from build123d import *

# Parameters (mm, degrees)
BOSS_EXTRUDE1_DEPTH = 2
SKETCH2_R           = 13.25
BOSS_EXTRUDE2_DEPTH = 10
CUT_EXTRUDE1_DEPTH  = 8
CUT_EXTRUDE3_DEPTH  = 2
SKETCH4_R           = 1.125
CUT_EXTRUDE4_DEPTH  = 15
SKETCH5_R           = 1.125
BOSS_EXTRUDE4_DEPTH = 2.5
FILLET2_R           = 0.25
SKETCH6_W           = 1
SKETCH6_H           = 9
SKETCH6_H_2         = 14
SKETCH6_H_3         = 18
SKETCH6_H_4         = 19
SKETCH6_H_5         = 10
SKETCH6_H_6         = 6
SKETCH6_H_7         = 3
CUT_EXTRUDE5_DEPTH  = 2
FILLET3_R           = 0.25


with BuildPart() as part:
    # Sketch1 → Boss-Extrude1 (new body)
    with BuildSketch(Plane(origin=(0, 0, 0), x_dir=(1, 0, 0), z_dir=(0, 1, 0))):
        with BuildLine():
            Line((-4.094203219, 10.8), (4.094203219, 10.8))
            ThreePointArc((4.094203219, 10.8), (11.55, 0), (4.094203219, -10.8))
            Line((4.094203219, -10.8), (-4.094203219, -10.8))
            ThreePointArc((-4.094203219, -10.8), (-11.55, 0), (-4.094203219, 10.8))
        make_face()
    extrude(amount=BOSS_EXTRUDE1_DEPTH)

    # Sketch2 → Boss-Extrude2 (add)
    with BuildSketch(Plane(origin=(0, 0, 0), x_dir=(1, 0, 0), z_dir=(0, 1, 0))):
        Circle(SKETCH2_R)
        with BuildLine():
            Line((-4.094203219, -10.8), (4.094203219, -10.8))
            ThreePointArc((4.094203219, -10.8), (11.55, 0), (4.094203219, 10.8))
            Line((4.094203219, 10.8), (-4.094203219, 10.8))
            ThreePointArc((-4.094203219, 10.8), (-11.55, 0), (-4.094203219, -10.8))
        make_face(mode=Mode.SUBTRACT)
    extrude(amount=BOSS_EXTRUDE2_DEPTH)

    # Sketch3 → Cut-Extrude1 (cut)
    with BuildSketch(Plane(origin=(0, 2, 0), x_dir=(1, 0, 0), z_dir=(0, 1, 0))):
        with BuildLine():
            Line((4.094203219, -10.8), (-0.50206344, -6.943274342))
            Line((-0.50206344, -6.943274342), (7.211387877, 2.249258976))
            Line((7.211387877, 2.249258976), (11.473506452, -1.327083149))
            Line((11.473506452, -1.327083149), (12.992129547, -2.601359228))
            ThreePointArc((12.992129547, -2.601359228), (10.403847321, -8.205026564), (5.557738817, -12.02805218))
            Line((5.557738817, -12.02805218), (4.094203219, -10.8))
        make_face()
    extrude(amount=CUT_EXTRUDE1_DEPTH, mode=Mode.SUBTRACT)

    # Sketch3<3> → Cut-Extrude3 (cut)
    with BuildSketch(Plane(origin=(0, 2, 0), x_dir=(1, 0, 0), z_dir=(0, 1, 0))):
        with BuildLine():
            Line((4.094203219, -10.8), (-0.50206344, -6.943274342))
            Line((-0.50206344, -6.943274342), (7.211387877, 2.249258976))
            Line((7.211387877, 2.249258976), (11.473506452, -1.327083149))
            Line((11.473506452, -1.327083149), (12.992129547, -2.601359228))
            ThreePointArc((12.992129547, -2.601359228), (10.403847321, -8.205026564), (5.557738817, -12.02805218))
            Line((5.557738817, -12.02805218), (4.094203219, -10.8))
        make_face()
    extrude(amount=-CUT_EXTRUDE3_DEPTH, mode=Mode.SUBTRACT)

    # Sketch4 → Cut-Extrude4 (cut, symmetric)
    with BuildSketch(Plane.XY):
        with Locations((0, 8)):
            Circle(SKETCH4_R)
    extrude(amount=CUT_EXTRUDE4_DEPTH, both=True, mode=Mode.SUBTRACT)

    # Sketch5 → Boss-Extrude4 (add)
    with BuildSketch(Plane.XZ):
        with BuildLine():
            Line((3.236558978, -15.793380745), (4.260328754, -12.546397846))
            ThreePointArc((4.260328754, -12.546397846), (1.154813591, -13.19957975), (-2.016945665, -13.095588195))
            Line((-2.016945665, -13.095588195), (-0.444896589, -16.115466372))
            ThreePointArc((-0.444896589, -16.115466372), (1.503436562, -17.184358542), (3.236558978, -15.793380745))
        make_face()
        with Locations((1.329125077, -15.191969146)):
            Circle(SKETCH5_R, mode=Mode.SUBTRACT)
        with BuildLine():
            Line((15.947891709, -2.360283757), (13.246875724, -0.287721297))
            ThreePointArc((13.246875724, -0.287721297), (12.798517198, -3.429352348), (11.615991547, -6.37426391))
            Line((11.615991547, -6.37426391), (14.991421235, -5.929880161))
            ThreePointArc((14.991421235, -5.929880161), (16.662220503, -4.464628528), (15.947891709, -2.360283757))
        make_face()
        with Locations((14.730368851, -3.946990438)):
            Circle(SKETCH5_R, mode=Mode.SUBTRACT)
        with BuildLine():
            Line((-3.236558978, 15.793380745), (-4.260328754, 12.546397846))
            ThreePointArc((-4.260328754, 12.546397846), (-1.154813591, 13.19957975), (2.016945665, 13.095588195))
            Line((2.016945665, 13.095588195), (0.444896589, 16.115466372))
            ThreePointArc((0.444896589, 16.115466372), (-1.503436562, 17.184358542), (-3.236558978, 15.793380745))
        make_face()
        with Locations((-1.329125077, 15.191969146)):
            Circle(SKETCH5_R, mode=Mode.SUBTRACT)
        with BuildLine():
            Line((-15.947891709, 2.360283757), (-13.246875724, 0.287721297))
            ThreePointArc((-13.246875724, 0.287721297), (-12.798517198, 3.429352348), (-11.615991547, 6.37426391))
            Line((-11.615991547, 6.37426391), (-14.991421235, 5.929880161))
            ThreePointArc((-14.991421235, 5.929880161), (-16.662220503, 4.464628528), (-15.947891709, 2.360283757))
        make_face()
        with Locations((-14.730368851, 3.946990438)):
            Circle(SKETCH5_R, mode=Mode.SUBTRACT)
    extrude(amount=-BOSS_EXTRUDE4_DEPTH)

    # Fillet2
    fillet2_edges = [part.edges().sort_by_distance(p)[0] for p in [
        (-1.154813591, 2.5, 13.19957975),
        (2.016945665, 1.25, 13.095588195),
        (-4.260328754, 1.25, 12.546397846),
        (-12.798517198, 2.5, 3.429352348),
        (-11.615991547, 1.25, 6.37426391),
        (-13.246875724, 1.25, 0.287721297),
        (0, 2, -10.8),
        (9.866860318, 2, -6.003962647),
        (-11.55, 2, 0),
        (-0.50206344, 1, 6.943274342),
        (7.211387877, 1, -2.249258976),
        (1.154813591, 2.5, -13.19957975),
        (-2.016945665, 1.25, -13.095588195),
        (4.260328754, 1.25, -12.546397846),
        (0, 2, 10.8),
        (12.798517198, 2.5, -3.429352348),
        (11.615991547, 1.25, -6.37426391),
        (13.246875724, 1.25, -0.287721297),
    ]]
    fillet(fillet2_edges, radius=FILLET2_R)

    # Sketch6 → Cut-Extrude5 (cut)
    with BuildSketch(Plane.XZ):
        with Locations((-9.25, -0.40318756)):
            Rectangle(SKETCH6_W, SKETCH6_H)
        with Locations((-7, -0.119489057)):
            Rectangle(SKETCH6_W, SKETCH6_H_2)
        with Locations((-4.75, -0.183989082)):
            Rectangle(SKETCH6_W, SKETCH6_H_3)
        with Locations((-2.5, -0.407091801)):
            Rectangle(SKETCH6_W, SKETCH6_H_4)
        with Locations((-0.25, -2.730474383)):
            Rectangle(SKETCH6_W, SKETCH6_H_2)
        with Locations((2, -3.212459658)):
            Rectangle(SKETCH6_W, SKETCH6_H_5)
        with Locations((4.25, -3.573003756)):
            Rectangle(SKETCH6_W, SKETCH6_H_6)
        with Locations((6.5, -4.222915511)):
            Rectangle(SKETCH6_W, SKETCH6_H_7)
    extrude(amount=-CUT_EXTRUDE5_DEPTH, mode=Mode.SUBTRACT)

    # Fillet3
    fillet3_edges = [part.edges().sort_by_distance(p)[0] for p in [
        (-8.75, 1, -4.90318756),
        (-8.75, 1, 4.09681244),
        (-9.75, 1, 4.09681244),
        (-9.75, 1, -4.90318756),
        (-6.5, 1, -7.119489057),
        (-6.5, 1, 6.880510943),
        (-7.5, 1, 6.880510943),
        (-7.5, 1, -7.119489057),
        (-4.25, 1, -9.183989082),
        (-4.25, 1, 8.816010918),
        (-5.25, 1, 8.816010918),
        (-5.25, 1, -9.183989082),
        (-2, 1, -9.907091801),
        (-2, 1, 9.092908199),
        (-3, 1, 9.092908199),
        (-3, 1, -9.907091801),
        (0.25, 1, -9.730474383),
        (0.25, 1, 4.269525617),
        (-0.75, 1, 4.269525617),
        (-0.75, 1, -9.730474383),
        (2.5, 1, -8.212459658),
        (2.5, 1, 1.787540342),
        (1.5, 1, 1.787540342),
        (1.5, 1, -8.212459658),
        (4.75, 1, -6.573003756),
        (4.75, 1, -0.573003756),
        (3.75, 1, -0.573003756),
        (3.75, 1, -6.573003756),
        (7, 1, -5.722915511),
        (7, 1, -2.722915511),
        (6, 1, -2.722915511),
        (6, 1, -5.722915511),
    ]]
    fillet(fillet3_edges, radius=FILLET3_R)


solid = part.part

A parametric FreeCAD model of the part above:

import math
import FreeCAD as App
import Part
import Sketcher
from FreeCAD import Vector
Q = App.Units.Quantity


def edges_at(feature, points):
    """Names of the edges that pass closest to the given points."""
    edges = feature.Shape.Edges
    near = lambda p: min(range(len(edges)), key=lambda i: edges[i].distToShape(Part.Vertex(*p))[0])
    return sorted({f"Edge{near(p) + 1}" for p in points})


def add_polygon(sketch, points):
    """Adds a closed chain of lines whose ends are joined by coincident constraints."""
    first, n = sketch.GeometryCount, len(points)
    for a, b in zip(points, points[1:] + points[:1]):
        sketch.addGeometry(Part.LineSegment(App.Vector(*a, 0), App.Vector(*b, 0)), False)
    for i in range(n):
        sketch.addConstraint(Sketcher.Constraint("Coincident", first + i, 2, first + (i + 1) % n, 1))

doc = App.newDocument("Part")
body = doc.addObject("PartDesign::Body", "Body")

# Sketch on XZ plane
sketch1 = body.newObject("Sketcher::SketchObject", "Sketch")
sketch1.AttachmentSupport = (doc.getObject("XZ_Plane"), [""])
sketch1.MapMode = "FlatFace"
sketch1.addGeometry([
    Part.LineSegment(Vector(4.094203, -10.8, 0), Vector(-4.094203, -10.8, 0)),
    Part.ArcOfCircle(Part.Circle(Vector(0, 0, 0), Vector(0, 0, 1), 11.55), math.radians(110.761362), math.radians(249.238638)),
    Part.LineSegment(Vector(-4.094203, 10.8, 0), Vector(4.094203, 10.8, 0)),
    Part.ArcOfCircle(Part.Circle(Vector(0, 0, 0), Vector(0, 0, 1), 11.55), math.radians(-69.238638), math.radians(69.238638)),
], False)
sketch1.addConstraint([
    Sketcher.Constraint("Coincident", 0, 2, 1, 2),
    Sketcher.Constraint("Coincident", 1, 1, 2, 1),
    Sketcher.Constraint("Coincident", 2, 2, 3, 2),
    Sketcher.Constraint("Coincident", 3, 1, 0, 1),
    Sketcher.Constraint("Horizontal", 0),
    Sketcher.Constraint("Horizontal", 2),
    Sketcher.Constraint("Coincident", 1, 3, -1, 1),
    Sketcher.Constraint("Coincident", 3, 3, -1, 1),
    Sketcher.Constraint("Equal", 1, 3),
    Sketcher.Constraint("Vertical", 0, 2, 1, 1),
    Sketcher.Constraint("Radius", 1, 11.55),
    Sketcher.Constraint("DistanceY", 0, 2, -1, 1, 10.8),
])
pad1 = body.newObject("PartDesign::Pad", "Pad")
pad1.Profile = sketch1
pad1.Length = 2
pad1.Reversed = True

# Sketch on XZ plane
sketch2 = body.newObject("Sketcher::SketchObject", "Sketch001")
sketch2.AttachmentSupport = (doc.getObject("XZ_Plane"), [""])
sketch2.MapMode = "FlatFace"
sketch2.addGeometry([
    Part.Circle(Vector(0, 0, 0), Vector(0, 0, 1), 13.25),  # 0
    Part.LineSegment(Vector(4.094203, 10.8, 0), Vector(-4.094203, 10.8, 0)),  # 1
    Part.ArcOfCircle(Part.Circle(Vector(0, 0, 0), Vector(0, 0, 1), 11.55), math.radians(110.761362), math.radians(249.238638)),  # 2
    Part.LineSegment(Vector(-4.094203, -10.8, 0), Vector(4.094203, -10.8, 0)),  # 3
    Part.ArcOfCircle(Part.Circle(Vector(0, 0, 0), Vector(0, 0, 1), 11.55), math.radians(-69.238638), math.radians(69.238638)),  # 4
], False)
sketch2.addConstraint([
    Sketcher.Constraint("Coincident", 1, 2, 2, 1),
    Sketcher.Constraint("Coincident", 2, 2, 3, 1),
    Sketcher.Constraint("Coincident", 3, 2, 4, 1),
    Sketcher.Constraint("Coincident", 4, 2, 1, 1),
    Sketcher.Constraint("Horizontal", 1),
    Sketcher.Constraint("Horizontal", 3),
    Sketcher.Constraint("Coincident", 0, 3, -1, 1),
    Sketcher.Constraint("Coincident", 2, 3, -1, 1),
    Sketcher.Constraint("Coincident", 4, 3, -1, 1),
    Sketcher.Constraint("Equal", 2, 4),
    Sketcher.Constraint("Vertical", 1, 2, 2, 2),
    Sketcher.Constraint("Diameter", 0, 26.5),
    Sketcher.Constraint("Radius", 2, 11.55),
    Sketcher.Constraint("DistanceY", -1, 1, 1, 2, 10.8),
])
pad2 = body.newObject("PartDesign::Pad", "Pad001")
pad2.Profile = sketch2
pad2.Length = 10
pad2.Reversed = True

# Sketch on XZ plane
sketch3 = body.newObject("Sketcher::SketchObject", "Sketch002")
sketch3.AttachmentSupport = (doc.getObject("XZ_Plane"), [""])
sketch3.MapMode = "FlatFace"
sketch3.AttachmentOffset = App.Placement(Vector(0, 0, -2), App.Rotation())
sketch3.addGeometry([
    Part.LineSegment(Vector(-0.502063, 6.943274, 0), Vector(4.094203, 10.8, 0)),  # 0
    Part.LineSegment(Vector(4.094203, 10.8, 0), Vector(5.557739, 12.028052, 0)),  # 1
    Part.ArcOfCircle(Part.Circle(Vector(0, 0, 0), Vector(0, 0, 1), 13.25), math.radians(11.32237), math.radians(65.200006)),  # 2
    Part.LineSegment(Vector(12.99213, 2.601359, 0), Vector(11.473506, 1.327083, 0)),  # 3
    Part.LineSegment(Vector(11.473506, 1.327083, 0), Vector(7.211388, -2.249259, 0)),  # 4
    Part.LineSegment(Vector(7.211388, -2.249259, 0), Vector(-0.502063, 6.943274, 0)),  # 5
], False)
sketch3.addConstraint([
    Sketcher.Constraint("Coincident", 0, 2, 1, 1),
    Sketcher.Constraint("Coincident", 1, 2, 2, 2),
    Sketcher.Constraint("Coincident", 2, 1, 3, 1),
    Sketcher.Constraint("Coincident", 3, 2, 4, 1),
    Sketcher.Constraint("Coincident", 4, 2, 5, 1),
    Sketcher.Constraint("Coincident", 5, 2, 0, 1),
    Sketcher.Constraint("Coincident", 2, 3, -1, 1),
    Sketcher.Constraint("Parallel", 0, 1),
    Sketcher.Constraint("Parallel", 1, 3),
    Sketcher.Constraint("Parallel", 3, 4),
    Sketcher.Constraint("Perpendicular", 4, 5),
    Sketcher.Constraint("Angle", 0, Q("40 deg")),
    Sketcher.Constraint("Radius", 2, 13.25),
    Sketcher.Constraint("Distance", 0, 6.0),
    Sketcher.Constraint("Distance", 5, 12.0),
    Sketcher.Constraint("DistanceY", -1, 1, 0, 2, 10.8),
    Sketcher.Constraint("Distance", 4, 5.563801),
    Sketcher.Constraint("Distance", 1, 1.91051),
])
pocket1 = body.newObject("PartDesign::Pocket", "Pocket")
pocket1.Profile = sketch3
pocket1.Length = 8

# Sketch on XZ plane
sketch4 = body.newObject("Sketcher::SketchObject", "Sketch003")
sketch4.AttachmentSupport = (doc.getObject("XZ_Plane"), [""])
sketch4.MapMode = "FlatFace"
sketch4.AttachmentOffset = App.Placement(Vector(0, 0, -2), App.Rotation())
sketch4.addGeometry([
    Part.LineSegment(Vector(-0.502063, 6.943274, 0), Vector(4.094203, 10.8, 0)),  # 0
    Part.LineSegment(Vector(4.094203, 10.8, 0), Vector(5.557739, 12.028052, 0)),  # 1
    Part.ArcOfCircle(Part.Circle(Vector(0, 0, 0), Vector(0, 0, 1), 13.25), math.radians(11.32237), math.radians(65.200006)),  # 2
    Part.LineSegment(Vector(12.99213, 2.601359, 0), Vector(11.473506, 1.327083, 0)),  # 3
    Part.LineSegment(Vector(11.473506, 1.327083, 0), Vector(7.211388, -2.249259, 0)),  # 4
    Part.LineSegment(Vector(7.211388, -2.249259, 0), Vector(-0.502063, 6.943274, 0)),  # 5
], False)
sketch4.addConstraint([
    Sketcher.Constraint("Coincident", 0, 2, 1, 1),
    Sketcher.Constraint("Coincident", 1, 2, 2, 2),
    Sketcher.Constraint("Coincident", 2, 1, 3, 1),
    Sketcher.Constraint("Coincident", 3, 2, 4, 1),
    Sketcher.Constraint("Coincident", 4, 2, 5, 1),
    Sketcher.Constraint("Coincident", 5, 2, 0, 1),
    Sketcher.Constraint("Coincident", 2, 3, -1, 1),
    Sketcher.Constraint("Parallel", 0, 1),
    Sketcher.Constraint("Parallel", 1, 3),
    Sketcher.Constraint("Parallel", 3, 4),
    Sketcher.Constraint("Perpendicular", 4, 5),
    Sketcher.Constraint("Angle", 0, Q("40 deg")),
    Sketcher.Constraint("Radius", 2, 13.25),
    Sketcher.Constraint("Distance", 0, 6.0),
    Sketcher.Constraint("Distance", 5, 12.0),
    Sketcher.Constraint("DistanceY", -1, 1, 0, 2, 10.8),
    Sketcher.Constraint("Distance", 4, 5.563801),
    Sketcher.Constraint("Distance", 1, 1.91051),
])
pocket2 = body.newObject("PartDesign::Pocket", "Pocket001")
pocket2.Profile = sketch4
pocket2.Length = 2
pocket2.Reversed = True

# Sketch on XY plane
sketch5 = body.newObject("Sketcher::SketchObject", "Sketch004")
sketch5.AttachmentSupport = (doc.getObject("XY_Plane"), [""])
sketch5.MapMode = "FlatFace"
sketch5.addGeometry(Part.Circle(Vector(0, 8, 0), Vector(0, 0, 1), 1.125), False)
sketch5.addConstraint([
    Sketcher.Constraint("PointOnObject", 0, 3, -2),
    Sketcher.Constraint("Diameter", 0, 2.25),
    Sketcher.Constraint("DistanceY", -1, 1, 0, 3, 8.0),
])
pocket3 = body.newObject("PartDesign::Pocket", "Pocket002")
pocket3.Profile = sketch5
pocket3.Length = 30
pocket3.Midplane = True

# Sketch on XZ plane
sketch6 = body.newObject("Sketcher::SketchObject", "Sketch005")
sketch6.AttachmentSupport = (doc.getObject("XZ_Plane"), [""])
sketch6.MapMode = "FlatFace"
sketch6.addGeometry([
    Part.LineSegment(Vector(3.236559, -15.793381, 0), Vector(4.260329, -12.546398, 0)),  # 0
    Part.ArcOfCircle(Part.Circle(Vector(0, 0, 0), Vector(0, 0, 1), 13.25), math.radians(-98.755735), math.radians(-71.244265)),  # 1
    Part.LineSegment(Vector(-2.016946, -13.095588, 0), Vector(-0.444897, -16.115466, 0)),  # 2
    Part.ArcOfCircle(Part.Circle(Vector(1.329125, -15.191969, 0), Vector(0, 0, 1), 2), math.radians(-152.5), math.radians(-17.5)),  # 3
    Part.Circle(Vector(1.329125, -15.191969, 0), Vector(0, 0, 1), 1.125),  # 4
    Part.LineSegment(Vector(15.947892, -2.360284, 0), Vector(13.246876, -0.287721, 0)),  # 5
    Part.ArcOfCircle(Part.Circle(Vector(0, 0, 0), Vector(0, 0, 1), 13.25), math.radians(-28.755735), math.radians(-1.244265)),  # 6
    Part.LineSegment(Vector(11.615992, -6.374264, 0), Vector(14.991421, -5.92988, 0)),  # 7
    Part.ArcOfCircle(Part.Circle(Vector(14.730369, -3.94699, 0), Vector(0, 0, 1), 2), math.radians(-82.5), math.radians(52.5)),  # 8
    Part.Circle(Vector(14.730369, -3.94699, 0), Vector(0, 0, 1), 1.125),  # 9
    Part.LineSegment(Vector(-3.236559, 15.793381, 0), Vector(-4.260329, 12.546398, 0)),  # 10
    Part.ArcOfCircle(Part.Circle(Vector(0, 0, 0), Vector(0, 0, 1), 13.25), math.radians(81.244265), math.radians(108.755735)),  # 11
    Part.LineSegment(Vector(2.016946, 13.095588, 0), Vector(0.444897, 16.115466, 0)),  # 12
    Part.ArcOfCircle(Part.Circle(Vector(-1.329125, 15.191969, 0), Vector(0, 0, 1), 2), math.radians(27.5), math.radians(162.5)),  # 13
    Part.Circle(Vector(-1.329125, 15.191969, 0), Vector(0, 0, 1), 1.125),  # 14
    Part.LineSegment(Vector(-15.947892, 2.360284, 0), Vector(-13.246876, 0.287721, 0)),  # 15
    Part.ArcOfCircle(Part.Circle(Vector(0, 0, 0), Vector(0, 0, 1), 13.25), math.radians(151.244265), math.radians(178.755735)),  # 16
    Part.LineSegment(Vector(-11.615992, 6.374264, 0), Vector(-14.991421, 5.92988, 0)),  # 17
    Part.ArcOfCircle(Part.Circle(Vector(-14.730369, 3.94699, 0), Vector(0, 0, 1), 2), math.radians(97.5), math.radians(232.5)),  # 18
    Part.Circle(Vector(-14.730369, 3.94699, 0), Vector(0, 0, 1), 1.125),  # 19
], False)
sketch6.addConstraint([
    Sketcher.Constraint("Coincident", 0, 2, 1, 2),
    Sketcher.Constraint("Coincident", 1, 1, 2, 1),
    Sketcher.Constraint("Tangent", 2, 2, 3, 1),
    Sketcher.Constraint("Tangent", 3, 2, 0, 1),
    Sketcher.Constraint("Coincident", 5, 2, 6, 2),
    Sketcher.Constraint("Coincident", 6, 1, 7, 1),
    Sketcher.Constraint("Tangent", 7, 2, 8, 1),
    Sketcher.Constraint("Tangent", 8, 2, 5, 1),
    Sketcher.Constraint("Coincident", 10, 2, 11, 2),
    Sketcher.Constraint("Coincident", 11, 1, 12, 1),
    Sketcher.Constraint("Tangent", 12, 2, 13, 1),
    Sketcher.Constraint("Tangent", 13, 2, 10, 1),
    Sketcher.Constraint("Coincident", 15, 2, 16, 2),
    Sketcher.Constraint("Coincident", 16, 1, 17, 1),
    Sketcher.Constraint("Tangent", 17, 2, 18, 1),
    Sketcher.Constraint("Tangent", 18, 2, 15, 1),
    Sketcher.Constraint("Coincident", 1, 3, -1, 1),
    Sketcher.Constraint("Coincident", 6, 3, -1, 1),
    Sketcher.Constraint("Coincident", 11, 3, -1, 1),
    Sketcher.Constraint("Coincident", 16, 3, -1, 1),
    Sketcher.Constraint("Coincident", 4, 3, 3, 3),
    Sketcher.Constraint("Coincident", 9, 3, 8, 3),
    Sketcher.Constraint("Coincident", 14, 3, 13, 3),
    Sketcher.Constraint("Coincident", 19, 3, 18, 3),
    Sketcher.Constraint("Equal", 1, 6),
    Sketcher.Constraint("Equal", 3, 8),
    Sketcher.Constraint("Equal", 4, 9),
    Sketcher.Constraint("Equal", 6, 11),
    Sketcher.Constraint("Equal", 8, 13),
    Sketcher.Constraint("Equal", 9, 14),
    Sketcher.Constraint("Equal", 11, 16),
    Sketcher.Constraint("Equal", 13, 18),
    Sketcher.Constraint("Equal", 14, 19),
    Sketcher.Constraint("Symmetric", 3, 3, 13, 3, -1, 1),
    Sketcher.Constraint("Symmetric", 8, 3, 18, 3, -1, 1),
    Sketcher.Constraint("Parallel", 0, 10),
    Sketcher.Constraint("Parallel", 2, 12),
    Sketcher.Constraint("Parallel", 5, 15),
    Sketcher.Constraint("Parallel", 7, 17),
    Sketcher.Constraint("Equal", 0, 2),
    Sketcher.Constraint("Equal", 2, 5),
    Sketcher.Constraint("Equal", 5, 7),
    Sketcher.Constraint("Radius", 3, 2.0),
    Sketcher.Constraint("Diameter", 4, 2.25),
    Sketcher.Constraint("Radius", 1, 13.25),
    Sketcher.Constraint("Angle", 0, Q("72.5 deg")),
    Sketcher.Constraint("Angle", 2, Q("-62.5 deg")),
    Sketcher.Constraint("Angle", 5, Q("142.5 deg")),
    Sketcher.Constraint("Angle", 7, Q("7.5 deg")),
    Sketcher.Constraint("DistanceX", 6, 1, 8, 2, 4.3319),
])
pad3 = body.newObject("PartDesign::Pad", "Pad002")
pad3.Profile = sketch6
pad3.Length = 2.5
pad3.Reversed = True
doc.recompute()

fillet = body.newObject("PartDesign::Fillet", "Fillet")
fillet.Base = (pad3, edges_at(pad3, [
    (-1.155, 2.5, 13.2),
    (2.017, 1.25, 13.096),
    (-4.26, 1.25, 12.546),
    (-12.799, 2.5, 3.429),
    (-11.616, 1.25, 6.374),
    (-13.247, 1.25, 0.288),
    (0, 2, -10.8),
    (9.867, 2, -6.004),
    (-11.55, 2, 0),
    (-0.502, 1, 6.943),
    (7.211, 1, -2.249),
    (1.155, 2.5, -13.2),
    (-2.017, 1.25, -13.096),
    (4.26, 1.25, -12.546),
    (0, 2, 10.8),
    (12.799, 2.5, -3.429),
    (11.616, 1.25, -6.374),
    (13.247, 1.25, -0.288),
]))
fillet.Radius = 0.25

# Sketch on XZ plane
sketch7 = body.newObject("Sketcher::SketchObject", "Sketch006")
sketch7.AttachmentSupport = (doc.getObject("XZ_Plane"), [""])
sketch7.MapMode = "FlatFace"
add_polygon(sketch7, [(-9.75, 4.096812), (-9.75, -4.903188), (-8.75, -4.903188), (-8.75, 4.096812)])  # lines 0-3
add_polygon(sketch7, [(-7.5, 6.880511), (-7.5, -7.119489), (-6.5, -7.119489), (-6.5, 6.880511)])  # lines 4-7
add_polygon(sketch7, [(-5.25, 8.816011), (-5.25, -9.183989), (-4.25, -9.183989), (-4.25, 8.816011)])  # lines 8-11
add_polygon(sketch7, [(-3, 9.092908), (-3, -9.907092), (-2, -9.907092), (-2, 9.092908)])  # lines 12-15
add_polygon(sketch7, [(-0.75, 4.269526), (-0.75, -9.730474), (0.25, -9.730474), (0.25, 4.269526)])  # lines 16-19
add_polygon(sketch7, [(1.5, 1.78754), (1.5, -8.21246), (2.5, -8.21246), (2.5, 1.78754)])  # lines 20-23
add_polygon(sketch7, [(3.75, -0.573004), (3.75, -6.573004), (4.75, -6.573004), (4.75, -0.573004)])  # lines 24-27
add_polygon(sketch7, [(6, -2.722916), (6, -5.722916), (7, -5.722916), (7, -2.722916)])  # lines 28-31
sketch7.addConstraint([
    Sketcher.Constraint("Vertical", 0),
    Sketcher.Constraint("Horizontal", 1),
    Sketcher.Constraint("Vertical", 2),
    Sketcher.Constraint("Horizontal", 3),
    Sketcher.Constraint("Vertical", 4),
    Sketcher.Constraint("Horizontal", 5),
    Sketcher.Constraint("Vertical", 6),
    Sketcher.Constraint("Horizontal", 7),
    Sketcher.Constraint("Vertical", 8),
    Sketcher.Constraint("Horizontal", 9),
    Sketcher.Constraint("Vertical", 10),
    Sketcher.Constraint("Horizontal", 11),
    Sketcher.Constraint("Vertical", 12),
    Sketcher.Constraint("Horizontal", 13),
    Sketcher.Constraint("Vertical", 14),
    Sketcher.Constraint("Horizontal", 15),
    Sketcher.Constraint("Vertical", 16),
    Sketcher.Constraint("Horizontal", 17),
    Sketcher.Constraint("Vertical", 18),
    Sketcher.Constraint("Horizontal", 19),
    Sketcher.Constraint("Vertical", 20),
    Sketcher.Constraint("Horizontal", 21),
    Sketcher.Constraint("Vertical", 22),
    Sketcher.Constraint("Horizontal", 23),
    Sketcher.Constraint("Vertical", 24),
    Sketcher.Constraint("Horizontal", 25),
    Sketcher.Constraint("Vertical", 26),
    Sketcher.Constraint("Horizontal", 27),
    Sketcher.Constraint("Vertical", 28),
    Sketcher.Constraint("Horizontal", 29),
    Sketcher.Constraint("Vertical", 30),
    Sketcher.Constraint("Horizontal", 31),
    Sketcher.Constraint("Equal", 3, 5),
    Sketcher.Constraint("Equal", 7, 9),
    Sketcher.Constraint("Equal", 11, 13),
    Sketcher.Constraint("Equal", 15, 17),
    Sketcher.Constraint("Equal", 19, 21),
    Sketcher.Constraint("Equal", 23, 25),
    Sketcher.Constraint("Equal", 27, 29),
    Sketcher.Constraint("Equal", 6, 16),
    Sketcher.Constraint("DistanceX", 1, 1, 1, 2, 1.0),
    Sketcher.Constraint("DistanceY", 0, 2, 0, 1, 9.0),
    Sketcher.Constraint("DistanceY", 4, 2, 4, 1, 14.0),
    Sketcher.Constraint("DistanceY", 8, 2, 8, 1, 18.0),
    Sketcher.Constraint("DistanceY", 12, 2, 12, 1, 19.0),
    Sketcher.Constraint("DistanceY", 20, 2, 20, 1, 10.0),
    Sketcher.Constraint("DistanceY", 24, 2, 24, 1, 6.0),
    Sketcher.Constraint("DistanceY", 28, 2, 28, 1, 3.0),
    Sketcher.Constraint("DistanceX", 12, 2, -1, 1, 3.0),
    Sketcher.Constraint("DistanceX", -1, 1, 28, 2, 6.0),
    Sketcher.Constraint("DistanceX", 4, 2, -1, 1, 7.5),
    Sketcher.Constraint("DistanceX", -1, 1, 20, 2, 1.5),
    Sketcher.Constraint("DistanceX", 1, 2, 8, 2, 3.5),
    Sketcher.Constraint("DistanceX", 9, 2, 16, 2, 3.5),
    Sketcher.Constraint("DistanceX", 17, 2, 24, 2, 3.5),
    Sketcher.Constraint("DistanceX", 0, 2, -1, 1, 9.75),
    Sketcher.Constraint("DistanceY", 4, 2, 1, 2, 2.216301),
    Sketcher.Constraint("DistanceY", 8, 2, 5, 2, 2.0645),
    Sketcher.Constraint("DistanceY", 4, 2, -1, 1, 7.119489),
    Sketcher.Constraint("DistanceY", 12, 2, -1, 1, 9.907092),
    Sketcher.Constraint("DistanceY", 20, 2, -1, 1, 8.21246),
    Sketcher.Constraint("DistanceY", 17, 2, 24, 2, 3.157471),
    Sketcher.Constraint("DistanceY", 13, 2, 24, 2, 3.334088),
    Sketcher.Constraint("DistanceY", 25, 2, 28, 2, 0.850088),
])
pocket4 = body.newObject("PartDesign::Pocket", "Pocket003")
pocket4.Profile = sketch7
pocket4.Length = 2
doc.recompute()

fillet2 = body.newObject("PartDesign::Fillet", "Fillet001")
fillet2.Base = (pocket4, edges_at(pocket4, [
    (-8.75, 1, -4.903),
    (-8.75, 1, 4.097),
    (-9.75, 1, 4.097),
    (-9.75, 1, -4.903),
    (-6.5, 1, -7.119),
    (-6.5, 1, 6.881),
    (-7.5, 1, 6.881),
    (-7.5, 1, -7.119),
    (-4.25, 1, -9.184),
    (-4.25, 1, 8.816),
    (-5.25, 1, 8.816),
    (-5.25, 1, -9.184),
    (-2, 1, -9.907),
    (-2, 1, 9.093),
    (-3, 1, 9.093),
    (-3, 1, -9.907),
    (0.25, 1, -9.73),
    (0.25, 1, 4.27),
    (-0.75, 1, 4.27),
    (-0.75, 1, -9.73),
    (2.5, 1, -8.212),
    (2.5, 1, 1.788),
    (1.5, 1, 1.788),
    (1.5, 1, -8.212),
    (4.75, 1, -6.573),
    (4.75, 1, -0.573),
    (3.75, 1, -0.573),
    (3.75, 1, -6.573),
    (7, 1, -5.723),
    (7, 1, -2.723),
    (6, 1, -2.723),
    (6, 1, -5.723),
]))
fillet2.Radius = 0.25

doc.recompute()
